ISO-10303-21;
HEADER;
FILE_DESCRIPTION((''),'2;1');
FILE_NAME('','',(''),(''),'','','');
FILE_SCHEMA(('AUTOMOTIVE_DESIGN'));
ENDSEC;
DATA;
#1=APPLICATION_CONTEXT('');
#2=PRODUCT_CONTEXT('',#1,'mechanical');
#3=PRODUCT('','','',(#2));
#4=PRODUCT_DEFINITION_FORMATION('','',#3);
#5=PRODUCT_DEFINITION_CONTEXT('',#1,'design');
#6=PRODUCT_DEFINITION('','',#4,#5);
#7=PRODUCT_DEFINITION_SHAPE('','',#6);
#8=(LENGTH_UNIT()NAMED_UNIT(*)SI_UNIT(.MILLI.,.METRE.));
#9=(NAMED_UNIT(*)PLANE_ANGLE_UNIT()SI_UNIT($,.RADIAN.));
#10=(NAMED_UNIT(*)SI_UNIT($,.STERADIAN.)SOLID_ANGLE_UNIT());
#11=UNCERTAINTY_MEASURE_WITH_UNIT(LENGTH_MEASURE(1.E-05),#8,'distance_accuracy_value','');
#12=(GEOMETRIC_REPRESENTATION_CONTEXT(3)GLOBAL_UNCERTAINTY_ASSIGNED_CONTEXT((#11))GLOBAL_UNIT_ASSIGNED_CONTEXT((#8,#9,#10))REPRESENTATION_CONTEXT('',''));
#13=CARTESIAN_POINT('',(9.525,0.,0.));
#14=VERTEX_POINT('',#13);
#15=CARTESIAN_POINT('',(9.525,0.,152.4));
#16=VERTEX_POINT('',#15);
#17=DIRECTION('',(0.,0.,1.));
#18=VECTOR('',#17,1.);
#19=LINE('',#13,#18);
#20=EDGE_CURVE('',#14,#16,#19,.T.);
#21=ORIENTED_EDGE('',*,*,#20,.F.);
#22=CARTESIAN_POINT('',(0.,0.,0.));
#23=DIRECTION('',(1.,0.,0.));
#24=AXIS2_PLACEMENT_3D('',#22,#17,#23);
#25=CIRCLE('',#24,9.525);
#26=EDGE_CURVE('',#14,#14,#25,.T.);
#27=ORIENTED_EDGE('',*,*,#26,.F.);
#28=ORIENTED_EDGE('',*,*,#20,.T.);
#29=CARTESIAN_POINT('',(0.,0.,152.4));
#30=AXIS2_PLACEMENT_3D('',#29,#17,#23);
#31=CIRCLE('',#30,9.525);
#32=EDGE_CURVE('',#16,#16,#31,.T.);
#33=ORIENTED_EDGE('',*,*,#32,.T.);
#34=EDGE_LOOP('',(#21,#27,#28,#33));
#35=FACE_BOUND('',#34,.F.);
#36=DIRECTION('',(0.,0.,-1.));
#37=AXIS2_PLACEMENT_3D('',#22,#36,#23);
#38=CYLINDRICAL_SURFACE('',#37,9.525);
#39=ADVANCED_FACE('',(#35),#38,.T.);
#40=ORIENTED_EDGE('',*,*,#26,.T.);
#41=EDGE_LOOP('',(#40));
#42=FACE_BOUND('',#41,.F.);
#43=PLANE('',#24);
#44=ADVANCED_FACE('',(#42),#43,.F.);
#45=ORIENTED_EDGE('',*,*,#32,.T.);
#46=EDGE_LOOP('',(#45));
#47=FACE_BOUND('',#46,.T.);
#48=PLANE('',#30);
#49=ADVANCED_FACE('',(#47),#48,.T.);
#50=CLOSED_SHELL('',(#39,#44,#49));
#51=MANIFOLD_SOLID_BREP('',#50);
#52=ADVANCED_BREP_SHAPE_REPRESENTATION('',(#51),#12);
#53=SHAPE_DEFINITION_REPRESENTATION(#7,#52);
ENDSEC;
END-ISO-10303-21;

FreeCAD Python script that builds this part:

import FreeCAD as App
import Part
import Sketcher

V = App.Vector
Q = App.Units.Quantity

doc = App.newDocument("Part")
body = doc.addObject("PartDesign::Body", "Body")

# Sketch on XY plane
sketch1 = body.newObject("Sketcher::SketchObject", "Sketch")
sketch1.AttachmentSupport = (doc.getObject("XY_Plane"), [""])
sketch1.MapMode = "FlatFace"
sketch1.addGeometry(Part.Circle(V(0, 0, 0), V(0, 0, 1), 10), False)
sketch1.addConstraint([
    Sketcher.Constraint("Coincident", 0, 3, -1, 1),
    Sketcher.Constraint("Diameter", 0, Q("0.75 in")),
])
pad1 = body.newObject("PartDesign::Pad", "Pad")
pad1.Profile = sketch1
pad1.Length = Q("6 in")

doc.recompute()
